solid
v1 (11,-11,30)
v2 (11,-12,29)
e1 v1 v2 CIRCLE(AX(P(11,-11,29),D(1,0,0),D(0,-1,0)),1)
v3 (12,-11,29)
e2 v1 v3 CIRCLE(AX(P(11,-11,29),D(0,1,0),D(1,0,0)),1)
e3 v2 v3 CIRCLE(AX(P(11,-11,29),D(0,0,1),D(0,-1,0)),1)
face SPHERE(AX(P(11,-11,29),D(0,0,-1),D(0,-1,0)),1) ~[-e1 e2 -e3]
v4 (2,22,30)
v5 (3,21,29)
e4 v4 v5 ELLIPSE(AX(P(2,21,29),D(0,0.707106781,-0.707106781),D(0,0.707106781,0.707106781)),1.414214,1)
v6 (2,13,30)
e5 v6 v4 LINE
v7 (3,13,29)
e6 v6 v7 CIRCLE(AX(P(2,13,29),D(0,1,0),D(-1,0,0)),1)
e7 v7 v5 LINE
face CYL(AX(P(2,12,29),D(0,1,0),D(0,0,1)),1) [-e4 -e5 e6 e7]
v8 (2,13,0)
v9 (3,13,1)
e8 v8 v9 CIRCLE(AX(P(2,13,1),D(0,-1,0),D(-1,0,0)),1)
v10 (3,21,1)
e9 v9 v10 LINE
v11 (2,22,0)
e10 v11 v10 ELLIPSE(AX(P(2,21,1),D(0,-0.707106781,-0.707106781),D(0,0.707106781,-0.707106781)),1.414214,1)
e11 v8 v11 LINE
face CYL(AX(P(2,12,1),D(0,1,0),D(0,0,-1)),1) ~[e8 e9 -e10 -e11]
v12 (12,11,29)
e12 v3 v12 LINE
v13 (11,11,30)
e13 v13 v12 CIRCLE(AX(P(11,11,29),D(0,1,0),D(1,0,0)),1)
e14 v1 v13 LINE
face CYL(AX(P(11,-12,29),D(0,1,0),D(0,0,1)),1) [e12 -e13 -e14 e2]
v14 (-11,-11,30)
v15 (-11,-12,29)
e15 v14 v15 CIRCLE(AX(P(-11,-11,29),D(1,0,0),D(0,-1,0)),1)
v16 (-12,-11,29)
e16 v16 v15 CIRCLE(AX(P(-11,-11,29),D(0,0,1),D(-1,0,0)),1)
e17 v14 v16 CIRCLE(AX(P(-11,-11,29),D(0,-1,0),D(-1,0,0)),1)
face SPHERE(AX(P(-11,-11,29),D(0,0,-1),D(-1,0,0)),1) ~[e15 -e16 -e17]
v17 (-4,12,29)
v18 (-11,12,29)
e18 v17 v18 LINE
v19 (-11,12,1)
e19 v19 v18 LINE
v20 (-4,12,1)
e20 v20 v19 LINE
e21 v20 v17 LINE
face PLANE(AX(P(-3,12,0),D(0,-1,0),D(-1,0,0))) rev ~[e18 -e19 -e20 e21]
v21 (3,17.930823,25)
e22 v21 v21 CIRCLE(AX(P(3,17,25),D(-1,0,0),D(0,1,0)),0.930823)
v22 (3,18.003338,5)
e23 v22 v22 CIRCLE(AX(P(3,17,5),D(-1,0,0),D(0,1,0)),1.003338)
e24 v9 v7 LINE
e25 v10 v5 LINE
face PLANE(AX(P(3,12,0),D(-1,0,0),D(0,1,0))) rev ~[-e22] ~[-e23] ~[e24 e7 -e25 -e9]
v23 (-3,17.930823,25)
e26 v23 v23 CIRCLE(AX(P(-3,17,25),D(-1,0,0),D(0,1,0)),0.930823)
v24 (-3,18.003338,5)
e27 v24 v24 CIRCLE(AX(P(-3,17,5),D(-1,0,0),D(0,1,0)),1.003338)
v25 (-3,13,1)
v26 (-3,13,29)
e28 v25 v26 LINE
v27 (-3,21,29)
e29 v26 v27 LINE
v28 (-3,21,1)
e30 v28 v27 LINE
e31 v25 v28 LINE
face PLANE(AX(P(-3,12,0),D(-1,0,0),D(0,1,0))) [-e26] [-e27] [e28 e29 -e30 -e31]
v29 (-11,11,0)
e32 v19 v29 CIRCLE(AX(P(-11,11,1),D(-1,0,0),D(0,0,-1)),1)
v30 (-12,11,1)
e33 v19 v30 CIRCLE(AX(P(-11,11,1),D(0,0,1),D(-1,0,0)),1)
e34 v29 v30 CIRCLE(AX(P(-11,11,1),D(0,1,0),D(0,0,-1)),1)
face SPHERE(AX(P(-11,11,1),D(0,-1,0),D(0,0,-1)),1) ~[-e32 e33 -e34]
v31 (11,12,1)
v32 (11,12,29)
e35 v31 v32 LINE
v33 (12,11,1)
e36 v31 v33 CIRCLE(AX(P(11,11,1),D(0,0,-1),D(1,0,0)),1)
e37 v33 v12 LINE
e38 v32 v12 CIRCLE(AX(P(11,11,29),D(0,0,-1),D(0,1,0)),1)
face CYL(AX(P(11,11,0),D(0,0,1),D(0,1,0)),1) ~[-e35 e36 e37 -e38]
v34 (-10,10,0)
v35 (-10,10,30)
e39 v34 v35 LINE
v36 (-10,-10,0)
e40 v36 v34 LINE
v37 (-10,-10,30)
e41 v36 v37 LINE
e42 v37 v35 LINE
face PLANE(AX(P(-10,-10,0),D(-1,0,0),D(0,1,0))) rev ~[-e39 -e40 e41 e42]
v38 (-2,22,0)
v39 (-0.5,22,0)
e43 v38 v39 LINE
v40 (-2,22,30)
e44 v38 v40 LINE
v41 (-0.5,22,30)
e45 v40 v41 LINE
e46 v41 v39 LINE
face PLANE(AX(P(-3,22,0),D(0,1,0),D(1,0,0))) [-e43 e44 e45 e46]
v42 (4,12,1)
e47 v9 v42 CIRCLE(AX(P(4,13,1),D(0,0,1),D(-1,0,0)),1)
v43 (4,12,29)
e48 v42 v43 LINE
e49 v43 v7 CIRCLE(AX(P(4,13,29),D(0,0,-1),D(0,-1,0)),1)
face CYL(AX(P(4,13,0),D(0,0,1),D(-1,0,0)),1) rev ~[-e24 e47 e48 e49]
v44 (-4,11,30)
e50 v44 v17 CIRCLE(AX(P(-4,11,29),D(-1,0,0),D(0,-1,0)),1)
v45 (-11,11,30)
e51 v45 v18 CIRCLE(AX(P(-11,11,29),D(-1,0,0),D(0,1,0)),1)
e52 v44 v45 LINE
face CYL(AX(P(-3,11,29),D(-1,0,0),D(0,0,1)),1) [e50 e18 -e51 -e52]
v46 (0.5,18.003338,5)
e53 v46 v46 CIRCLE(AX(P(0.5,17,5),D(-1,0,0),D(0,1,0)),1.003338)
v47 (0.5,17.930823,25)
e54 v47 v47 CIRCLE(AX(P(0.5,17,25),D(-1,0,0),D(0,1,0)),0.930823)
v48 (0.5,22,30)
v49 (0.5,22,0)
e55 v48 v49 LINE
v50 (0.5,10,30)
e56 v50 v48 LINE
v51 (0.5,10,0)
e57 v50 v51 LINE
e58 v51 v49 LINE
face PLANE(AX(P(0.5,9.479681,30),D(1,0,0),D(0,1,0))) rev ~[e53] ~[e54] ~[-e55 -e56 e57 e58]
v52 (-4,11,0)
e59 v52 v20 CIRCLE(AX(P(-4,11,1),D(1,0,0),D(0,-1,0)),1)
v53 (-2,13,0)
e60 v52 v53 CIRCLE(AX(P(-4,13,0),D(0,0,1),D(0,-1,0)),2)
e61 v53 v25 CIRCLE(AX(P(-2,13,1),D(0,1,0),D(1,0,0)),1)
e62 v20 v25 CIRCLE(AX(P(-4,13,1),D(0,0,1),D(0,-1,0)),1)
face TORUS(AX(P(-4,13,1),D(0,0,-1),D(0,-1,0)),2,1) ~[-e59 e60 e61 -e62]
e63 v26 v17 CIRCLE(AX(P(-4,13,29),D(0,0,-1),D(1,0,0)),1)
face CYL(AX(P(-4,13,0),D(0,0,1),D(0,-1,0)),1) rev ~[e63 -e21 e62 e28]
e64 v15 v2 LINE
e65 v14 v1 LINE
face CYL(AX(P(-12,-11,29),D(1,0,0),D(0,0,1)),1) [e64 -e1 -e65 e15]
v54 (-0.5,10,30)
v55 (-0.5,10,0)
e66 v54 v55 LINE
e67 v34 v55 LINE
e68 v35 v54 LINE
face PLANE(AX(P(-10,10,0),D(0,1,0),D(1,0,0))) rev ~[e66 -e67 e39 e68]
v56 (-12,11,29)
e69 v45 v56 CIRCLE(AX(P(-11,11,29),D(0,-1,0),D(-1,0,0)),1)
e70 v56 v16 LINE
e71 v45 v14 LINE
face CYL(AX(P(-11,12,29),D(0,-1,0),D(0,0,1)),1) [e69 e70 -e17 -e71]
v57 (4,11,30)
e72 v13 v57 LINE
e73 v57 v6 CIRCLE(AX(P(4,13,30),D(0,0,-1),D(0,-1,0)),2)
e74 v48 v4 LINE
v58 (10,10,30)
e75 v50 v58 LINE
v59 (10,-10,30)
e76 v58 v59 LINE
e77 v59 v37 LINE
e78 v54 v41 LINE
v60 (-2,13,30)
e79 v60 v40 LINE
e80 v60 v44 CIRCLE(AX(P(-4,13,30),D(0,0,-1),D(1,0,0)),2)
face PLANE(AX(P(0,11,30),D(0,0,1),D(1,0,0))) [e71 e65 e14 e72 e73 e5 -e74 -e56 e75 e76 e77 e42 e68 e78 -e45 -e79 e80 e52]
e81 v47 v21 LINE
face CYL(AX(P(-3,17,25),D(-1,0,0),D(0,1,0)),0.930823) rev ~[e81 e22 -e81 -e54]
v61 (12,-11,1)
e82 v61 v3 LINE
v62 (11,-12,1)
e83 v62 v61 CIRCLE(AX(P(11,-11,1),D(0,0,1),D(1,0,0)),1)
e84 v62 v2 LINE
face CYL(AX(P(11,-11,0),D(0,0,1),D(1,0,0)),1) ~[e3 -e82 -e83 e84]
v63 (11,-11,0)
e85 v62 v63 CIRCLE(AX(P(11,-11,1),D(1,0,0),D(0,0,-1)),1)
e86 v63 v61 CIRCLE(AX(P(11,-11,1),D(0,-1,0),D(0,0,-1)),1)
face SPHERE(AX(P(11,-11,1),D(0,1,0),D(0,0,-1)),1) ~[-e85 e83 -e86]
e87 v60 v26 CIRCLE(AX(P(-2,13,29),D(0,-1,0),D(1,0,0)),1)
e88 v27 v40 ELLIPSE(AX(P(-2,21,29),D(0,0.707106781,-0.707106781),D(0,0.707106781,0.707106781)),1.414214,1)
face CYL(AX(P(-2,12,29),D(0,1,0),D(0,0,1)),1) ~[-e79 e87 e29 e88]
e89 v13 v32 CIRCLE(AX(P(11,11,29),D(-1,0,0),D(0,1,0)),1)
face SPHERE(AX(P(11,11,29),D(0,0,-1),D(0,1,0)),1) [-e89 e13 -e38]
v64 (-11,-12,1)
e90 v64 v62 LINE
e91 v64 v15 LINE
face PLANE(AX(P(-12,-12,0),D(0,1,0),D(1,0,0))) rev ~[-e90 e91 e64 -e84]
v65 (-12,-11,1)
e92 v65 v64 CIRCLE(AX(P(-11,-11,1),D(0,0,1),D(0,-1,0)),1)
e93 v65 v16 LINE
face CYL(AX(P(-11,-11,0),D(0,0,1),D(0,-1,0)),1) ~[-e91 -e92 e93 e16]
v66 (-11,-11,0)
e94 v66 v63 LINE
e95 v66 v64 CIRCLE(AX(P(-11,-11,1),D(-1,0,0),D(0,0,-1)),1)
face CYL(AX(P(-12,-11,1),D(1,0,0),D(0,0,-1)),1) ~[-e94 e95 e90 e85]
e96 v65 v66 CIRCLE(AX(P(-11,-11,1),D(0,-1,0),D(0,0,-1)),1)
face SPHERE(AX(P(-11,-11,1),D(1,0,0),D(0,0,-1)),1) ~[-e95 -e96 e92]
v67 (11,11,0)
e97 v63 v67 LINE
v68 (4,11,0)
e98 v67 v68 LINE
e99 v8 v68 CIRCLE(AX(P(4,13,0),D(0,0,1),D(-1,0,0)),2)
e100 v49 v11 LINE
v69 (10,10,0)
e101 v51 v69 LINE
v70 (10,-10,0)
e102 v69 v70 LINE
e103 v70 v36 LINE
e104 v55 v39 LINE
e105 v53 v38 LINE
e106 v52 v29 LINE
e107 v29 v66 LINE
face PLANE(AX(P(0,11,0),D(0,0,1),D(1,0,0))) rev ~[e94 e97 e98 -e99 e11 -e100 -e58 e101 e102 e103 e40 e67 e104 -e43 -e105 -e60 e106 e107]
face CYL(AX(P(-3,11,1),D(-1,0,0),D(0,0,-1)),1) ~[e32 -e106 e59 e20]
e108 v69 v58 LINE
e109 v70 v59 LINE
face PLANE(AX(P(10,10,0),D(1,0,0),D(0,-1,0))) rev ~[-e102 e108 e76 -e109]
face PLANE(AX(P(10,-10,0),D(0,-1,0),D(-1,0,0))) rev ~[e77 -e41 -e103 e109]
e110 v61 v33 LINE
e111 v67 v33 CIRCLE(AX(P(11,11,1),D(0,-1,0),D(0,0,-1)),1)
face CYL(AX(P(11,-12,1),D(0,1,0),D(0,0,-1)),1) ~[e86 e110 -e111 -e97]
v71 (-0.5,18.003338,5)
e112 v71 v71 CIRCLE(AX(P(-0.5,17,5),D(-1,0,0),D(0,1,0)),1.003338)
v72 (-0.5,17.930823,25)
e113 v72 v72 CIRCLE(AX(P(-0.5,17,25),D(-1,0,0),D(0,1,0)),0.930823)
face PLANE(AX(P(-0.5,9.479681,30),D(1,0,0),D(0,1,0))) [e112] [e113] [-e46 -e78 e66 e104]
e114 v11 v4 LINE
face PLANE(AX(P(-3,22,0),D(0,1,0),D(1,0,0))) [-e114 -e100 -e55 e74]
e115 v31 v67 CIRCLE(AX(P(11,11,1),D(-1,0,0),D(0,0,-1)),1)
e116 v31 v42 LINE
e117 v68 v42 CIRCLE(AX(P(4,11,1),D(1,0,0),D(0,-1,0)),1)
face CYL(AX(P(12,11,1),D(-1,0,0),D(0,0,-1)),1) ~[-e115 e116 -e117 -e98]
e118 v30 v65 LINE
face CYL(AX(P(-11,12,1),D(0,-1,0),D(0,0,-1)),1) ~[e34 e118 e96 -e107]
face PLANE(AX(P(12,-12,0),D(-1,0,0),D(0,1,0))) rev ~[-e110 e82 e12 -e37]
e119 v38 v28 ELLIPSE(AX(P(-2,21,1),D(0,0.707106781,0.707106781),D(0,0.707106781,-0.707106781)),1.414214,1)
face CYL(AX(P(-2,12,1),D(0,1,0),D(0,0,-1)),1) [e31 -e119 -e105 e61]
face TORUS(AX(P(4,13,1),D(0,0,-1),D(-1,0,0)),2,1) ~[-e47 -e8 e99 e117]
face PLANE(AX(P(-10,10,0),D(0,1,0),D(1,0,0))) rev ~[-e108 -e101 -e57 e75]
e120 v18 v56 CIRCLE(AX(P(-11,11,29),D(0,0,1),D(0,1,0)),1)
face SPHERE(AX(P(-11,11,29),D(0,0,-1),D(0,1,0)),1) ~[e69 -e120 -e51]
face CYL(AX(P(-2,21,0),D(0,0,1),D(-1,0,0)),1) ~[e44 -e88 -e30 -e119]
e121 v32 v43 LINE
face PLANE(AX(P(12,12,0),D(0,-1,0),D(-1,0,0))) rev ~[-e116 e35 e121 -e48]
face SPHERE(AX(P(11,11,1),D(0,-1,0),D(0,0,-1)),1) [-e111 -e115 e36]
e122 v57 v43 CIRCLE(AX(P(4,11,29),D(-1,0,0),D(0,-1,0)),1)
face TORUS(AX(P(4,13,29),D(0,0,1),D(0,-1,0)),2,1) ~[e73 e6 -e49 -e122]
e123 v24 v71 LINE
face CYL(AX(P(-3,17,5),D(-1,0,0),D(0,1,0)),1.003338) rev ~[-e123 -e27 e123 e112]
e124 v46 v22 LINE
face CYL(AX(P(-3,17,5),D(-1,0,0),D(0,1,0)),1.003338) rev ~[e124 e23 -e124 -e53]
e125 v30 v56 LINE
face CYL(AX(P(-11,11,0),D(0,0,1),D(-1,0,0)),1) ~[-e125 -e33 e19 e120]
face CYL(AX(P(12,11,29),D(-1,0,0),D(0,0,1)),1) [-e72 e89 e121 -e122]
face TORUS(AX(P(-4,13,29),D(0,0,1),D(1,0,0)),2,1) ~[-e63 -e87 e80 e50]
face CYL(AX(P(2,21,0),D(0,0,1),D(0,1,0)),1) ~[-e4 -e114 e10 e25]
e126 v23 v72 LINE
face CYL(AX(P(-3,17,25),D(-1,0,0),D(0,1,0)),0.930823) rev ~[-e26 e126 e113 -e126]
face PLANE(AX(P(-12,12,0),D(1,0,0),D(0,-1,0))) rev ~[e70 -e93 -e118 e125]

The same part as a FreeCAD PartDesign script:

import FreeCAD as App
import Part
import Sketcher

V = App.Vector
Q = App.Units.Quantity


def edges_at(feature, points):
    """Names of the edges that pass closest to the given points."""
    edges = feature.Shape.Edges
    near = lambda p: min(range(len(edges)), key=lambda i: edges[i].distToShape(Part.Vertex(*p))[0])
    return sorted({f"Edge{near(p) + 1}" for p in points})

doc = App.newDocument("Part")
body = doc.addObject("PartDesign::Body", "Body")

# Sketch on XY plane
sketch1 = body.newObject("Sketcher::SketchObject", "Sketch")
sketch1.AttachmentSupport = (doc.getObject("XY_Plane"), [""])
sketch1.MapMode = "FlatFace"
sketch1.addGeometry([
    Part.LineSegment(V(-12, 12, 0), V(-12, -12, 0)),  # 0
    Part.LineSegment(V(-12, -12, 0), V(12, -12, 0)),  # 1
    Part.LineSegment(V(12, -12, 0), V(12, 12, 0)),  # 2
    Part.LineSegment(V(12, 12, 0), V(3, 12, 0)),  # 3
    Part.LineSegment(V(3, 12, 0), V(3, 22, 0)),  # 4
    Part.LineSegment(V(3, 22, 0), V(-3, 22, 0)),  # 5
    Part.LineSegment(V(-3, 22, 0), V(-3, 12, 0)),  # 6
    Part.LineSegment(V(-3, 12, 0), V(-12, 12, 0)),  # 7
    Part.LineSegment(V(10, 10, 0), V(10, -10, 0)),  # 8
    Part.LineSegment(V(10, -10, 0), V(-10, -10, 0)),  # 9
    Part.LineSegment(V(-10, -10, 0), V(-10, 10, 0)),  # 10
    Part.LineSegment(V(-10, 10, 0), V(10, 10, 0)),  # 11
], False)
sketch1.addConstraint([
    Sketcher.Constraint("Coincident", 0, 2, 1, 1),
    Sketcher.Constraint("Coincident", 1, 2, 2, 1),
    Sketcher.Constraint("Coincident", 2, 2, 3, 1),
    Sketcher.Constraint("Coincident", 3, 2, 4, 1),
    Sketcher.Constraint("Coincident", 4, 2, 5, 1),
    Sketcher.Constraint("Coincident", 5, 2, 6, 1),
    Sketcher.Constraint("Coincident", 6, 2, 7, 1),
    Sketcher.Constraint("Coincident", 7, 2, 0, 1),
    Sketcher.Constraint("Coincident", 8, 2, 9, 1),
    Sketcher.Constraint("Coincident", 9, 2, 10, 1),
    Sketcher.Constraint("Coincident", 10, 2, 11, 1),
    Sketcher.Constraint("Coincident", 11, 2, 8, 1),
    Sketcher.Constraint("Vertical", 0),
    Sketcher.Constraint("Horizontal", 1),
    Sketcher.Constraint("Vertical", 2),
    Sketcher.Constraint("Horizontal", 3),
    Sketcher.Constraint("Vertical", 4),
    Sketcher.Constraint("Horizontal", 5),
    Sketcher.Constraint("Vertical", 6),
    Sketcher.Constraint("Horizontal", 7),
    Sketcher.Constraint("Vertical", 8),
    Sketcher.Constraint("Horizontal", 9),
    Sketcher.Constraint("Vertical", 10),
    Sketcher.Constraint("Horizontal", 11),
    Sketcher.Constraint("Symmetric", 0, 2, 2, 2, -1, 1),
    Sketcher.Constraint("Symmetric", 8, 2, 10, 2, -1, 1),
    Sketcher.Constraint("Symmetric", 3, 2, 6, 2, -2),
    Sketcher.Constraint("Equal", 1, 0),
    Sketcher.Constraint("Equal", 11, 8),
    Sketcher.Constraint("DistanceX", 1, 1, 1, 2, Q("24 mm")),
    Sketcher.Constraint("DistanceX", 3, 2, 3, 1, Q("9 mm")),
    Sketcher.Constraint("DistanceX", 9, 2, 9, 1, Q("20 mm")),
    Sketcher.Constraint("DistanceY", 4, 1, 4, 2, Q("10 mm")),
])
pad1 = body.newObject("PartDesign::Pad", "Pad")
pad1.Profile = sketch1
pad1.Length = 30

# Sketch on XY plane
sketch2 = body.newObject("Sketcher::SketchObject", "Sketch001")
sketch2.AttachmentSupport = (doc.getObject("XY_Plane"), [""])
sketch2.MapMode = "FlatFace"
sketch2.AttachmentOffset = App.Placement(V(0, 0, 30), App.Rotation())
sketch2.addGeometry([
    Part.LineSegment(V(-0.5, 27.283174, 0), V(-0.5, 9.479681, 0)),
    Part.LineSegment(V(-0.5, 9.479681, 0), V(0.5, 9.479681, 0)),
    Part.LineSegment(V(0.5, 9.479681, 0), V(0.5, 27.283174, 0)),
    Part.LineSegment(V(0.5, 27.283174, 0), V(-0.5, 27.283174, 0)),
], False)
sketch2.addConstraint([
    Sketcher.Constraint("Coincident", 0, 2, 1, 1),
    Sketcher.Constraint("Coincident", 1, 2, 2, 1),
    Sketcher.Constraint("Coincident", 2, 2, 3, 1),
    Sketcher.Constraint("Coincident", 3, 2, 0, 1),
    Sketcher.Constraint("Vertical", 0),
    Sketcher.Constraint("Horizontal", 1),
    Sketcher.Constraint("Vertical", 2),
    Sketcher.Constraint("Horizontal", 3),
    Sketcher.Constraint("DistanceX", 1, 1, 1, 2, Q("1 mm")),
    Sketcher.Constraint("DistanceX", 0, 2, -1, 1, Q("0.5 mm")),
    Sketcher.Constraint("DistanceY", 0, 2, 0, 1, Q("17.803493 mm")),
    Sketcher.Constraint("DistanceY", -1, 1, 0, 2, Q("9.479681 mm")),
])
pocket1 = body.newObject("PartDesign::Pocket", "Pocket")
pocket1.Profile = sketch2
pocket1.Length = 30

# Sketch on YZ plane
sketch3 = body.newObject("Sketcher::SketchObject", "Sketch002")
sketch3.AttachmentSupport = (doc.getObject("YZ_Plane"), [""])
sketch3.MapMode = "FlatFace"
sketch3.AttachmentOffset = App.Placement(V(0, 0, -3), App.Rotation())
sketch3.addGeometry([
    Part.Circle(V(17, 5, 0), V(0, 0, 1), 1.003338),
    Part.Circle(V(17, 25, 0), V(0, 0, 1), 0.930823),
], False)
sketch3.addConstraint([
    Sketcher.Constraint("Vertical", 0, 3, 1, 3),
    Sketcher.Constraint("DistanceX", -1, 1, 0, 3, Q("17 mm")),
    Sketcher.Constraint("DistanceY", -1, 1, 0, 3, Q("5 mm")),
    Sketcher.Constraint("DistanceY", -1, 1, 1, 3, Q("25 mm")),
    Sketcher.Constraint("Diameter", 0, Q("2.006675 mm")),
    Sketcher.Constraint("Diameter", 1, Q("1.861645 mm")),
])
pocket2 = body.newObject("PartDesign::Pocket", "Pocket001")
pocket2.Profile = sketch3
pocket2.Length = 30
pocket2.Reversed = True
doc.recompute()

fillet = body.newObject("PartDesign::Fillet", "Fillet")
fillet.Base = (pocket2, edges_at(pocket2, [
    (12, 0, 0),
    (0, -12, 0),
    (-12, 0, 0),
    (-7.5, 12, 0),
    (-3, 17, 0),
    (3, 17, 0),
    (7.5, 12, 0),
    (12, 12, 15),
    (12, -12, 15),
    (-12, -12, 15),
    (-12, 12, 15),
    (-3, 12, 15),
    (-3, 22, 15),
    (3, 22, 15),
    (3, 12, 15),
    (7.5, 12, 30),
    (3, 17, 30),
    (-3, 17, 30),
    (-7.5, 12, 30),
    (-12, 0, 30),
    (0, -12, 30),
    (12, 0, 30),
]))
fillet.Radius = 1

doc.recompute()
